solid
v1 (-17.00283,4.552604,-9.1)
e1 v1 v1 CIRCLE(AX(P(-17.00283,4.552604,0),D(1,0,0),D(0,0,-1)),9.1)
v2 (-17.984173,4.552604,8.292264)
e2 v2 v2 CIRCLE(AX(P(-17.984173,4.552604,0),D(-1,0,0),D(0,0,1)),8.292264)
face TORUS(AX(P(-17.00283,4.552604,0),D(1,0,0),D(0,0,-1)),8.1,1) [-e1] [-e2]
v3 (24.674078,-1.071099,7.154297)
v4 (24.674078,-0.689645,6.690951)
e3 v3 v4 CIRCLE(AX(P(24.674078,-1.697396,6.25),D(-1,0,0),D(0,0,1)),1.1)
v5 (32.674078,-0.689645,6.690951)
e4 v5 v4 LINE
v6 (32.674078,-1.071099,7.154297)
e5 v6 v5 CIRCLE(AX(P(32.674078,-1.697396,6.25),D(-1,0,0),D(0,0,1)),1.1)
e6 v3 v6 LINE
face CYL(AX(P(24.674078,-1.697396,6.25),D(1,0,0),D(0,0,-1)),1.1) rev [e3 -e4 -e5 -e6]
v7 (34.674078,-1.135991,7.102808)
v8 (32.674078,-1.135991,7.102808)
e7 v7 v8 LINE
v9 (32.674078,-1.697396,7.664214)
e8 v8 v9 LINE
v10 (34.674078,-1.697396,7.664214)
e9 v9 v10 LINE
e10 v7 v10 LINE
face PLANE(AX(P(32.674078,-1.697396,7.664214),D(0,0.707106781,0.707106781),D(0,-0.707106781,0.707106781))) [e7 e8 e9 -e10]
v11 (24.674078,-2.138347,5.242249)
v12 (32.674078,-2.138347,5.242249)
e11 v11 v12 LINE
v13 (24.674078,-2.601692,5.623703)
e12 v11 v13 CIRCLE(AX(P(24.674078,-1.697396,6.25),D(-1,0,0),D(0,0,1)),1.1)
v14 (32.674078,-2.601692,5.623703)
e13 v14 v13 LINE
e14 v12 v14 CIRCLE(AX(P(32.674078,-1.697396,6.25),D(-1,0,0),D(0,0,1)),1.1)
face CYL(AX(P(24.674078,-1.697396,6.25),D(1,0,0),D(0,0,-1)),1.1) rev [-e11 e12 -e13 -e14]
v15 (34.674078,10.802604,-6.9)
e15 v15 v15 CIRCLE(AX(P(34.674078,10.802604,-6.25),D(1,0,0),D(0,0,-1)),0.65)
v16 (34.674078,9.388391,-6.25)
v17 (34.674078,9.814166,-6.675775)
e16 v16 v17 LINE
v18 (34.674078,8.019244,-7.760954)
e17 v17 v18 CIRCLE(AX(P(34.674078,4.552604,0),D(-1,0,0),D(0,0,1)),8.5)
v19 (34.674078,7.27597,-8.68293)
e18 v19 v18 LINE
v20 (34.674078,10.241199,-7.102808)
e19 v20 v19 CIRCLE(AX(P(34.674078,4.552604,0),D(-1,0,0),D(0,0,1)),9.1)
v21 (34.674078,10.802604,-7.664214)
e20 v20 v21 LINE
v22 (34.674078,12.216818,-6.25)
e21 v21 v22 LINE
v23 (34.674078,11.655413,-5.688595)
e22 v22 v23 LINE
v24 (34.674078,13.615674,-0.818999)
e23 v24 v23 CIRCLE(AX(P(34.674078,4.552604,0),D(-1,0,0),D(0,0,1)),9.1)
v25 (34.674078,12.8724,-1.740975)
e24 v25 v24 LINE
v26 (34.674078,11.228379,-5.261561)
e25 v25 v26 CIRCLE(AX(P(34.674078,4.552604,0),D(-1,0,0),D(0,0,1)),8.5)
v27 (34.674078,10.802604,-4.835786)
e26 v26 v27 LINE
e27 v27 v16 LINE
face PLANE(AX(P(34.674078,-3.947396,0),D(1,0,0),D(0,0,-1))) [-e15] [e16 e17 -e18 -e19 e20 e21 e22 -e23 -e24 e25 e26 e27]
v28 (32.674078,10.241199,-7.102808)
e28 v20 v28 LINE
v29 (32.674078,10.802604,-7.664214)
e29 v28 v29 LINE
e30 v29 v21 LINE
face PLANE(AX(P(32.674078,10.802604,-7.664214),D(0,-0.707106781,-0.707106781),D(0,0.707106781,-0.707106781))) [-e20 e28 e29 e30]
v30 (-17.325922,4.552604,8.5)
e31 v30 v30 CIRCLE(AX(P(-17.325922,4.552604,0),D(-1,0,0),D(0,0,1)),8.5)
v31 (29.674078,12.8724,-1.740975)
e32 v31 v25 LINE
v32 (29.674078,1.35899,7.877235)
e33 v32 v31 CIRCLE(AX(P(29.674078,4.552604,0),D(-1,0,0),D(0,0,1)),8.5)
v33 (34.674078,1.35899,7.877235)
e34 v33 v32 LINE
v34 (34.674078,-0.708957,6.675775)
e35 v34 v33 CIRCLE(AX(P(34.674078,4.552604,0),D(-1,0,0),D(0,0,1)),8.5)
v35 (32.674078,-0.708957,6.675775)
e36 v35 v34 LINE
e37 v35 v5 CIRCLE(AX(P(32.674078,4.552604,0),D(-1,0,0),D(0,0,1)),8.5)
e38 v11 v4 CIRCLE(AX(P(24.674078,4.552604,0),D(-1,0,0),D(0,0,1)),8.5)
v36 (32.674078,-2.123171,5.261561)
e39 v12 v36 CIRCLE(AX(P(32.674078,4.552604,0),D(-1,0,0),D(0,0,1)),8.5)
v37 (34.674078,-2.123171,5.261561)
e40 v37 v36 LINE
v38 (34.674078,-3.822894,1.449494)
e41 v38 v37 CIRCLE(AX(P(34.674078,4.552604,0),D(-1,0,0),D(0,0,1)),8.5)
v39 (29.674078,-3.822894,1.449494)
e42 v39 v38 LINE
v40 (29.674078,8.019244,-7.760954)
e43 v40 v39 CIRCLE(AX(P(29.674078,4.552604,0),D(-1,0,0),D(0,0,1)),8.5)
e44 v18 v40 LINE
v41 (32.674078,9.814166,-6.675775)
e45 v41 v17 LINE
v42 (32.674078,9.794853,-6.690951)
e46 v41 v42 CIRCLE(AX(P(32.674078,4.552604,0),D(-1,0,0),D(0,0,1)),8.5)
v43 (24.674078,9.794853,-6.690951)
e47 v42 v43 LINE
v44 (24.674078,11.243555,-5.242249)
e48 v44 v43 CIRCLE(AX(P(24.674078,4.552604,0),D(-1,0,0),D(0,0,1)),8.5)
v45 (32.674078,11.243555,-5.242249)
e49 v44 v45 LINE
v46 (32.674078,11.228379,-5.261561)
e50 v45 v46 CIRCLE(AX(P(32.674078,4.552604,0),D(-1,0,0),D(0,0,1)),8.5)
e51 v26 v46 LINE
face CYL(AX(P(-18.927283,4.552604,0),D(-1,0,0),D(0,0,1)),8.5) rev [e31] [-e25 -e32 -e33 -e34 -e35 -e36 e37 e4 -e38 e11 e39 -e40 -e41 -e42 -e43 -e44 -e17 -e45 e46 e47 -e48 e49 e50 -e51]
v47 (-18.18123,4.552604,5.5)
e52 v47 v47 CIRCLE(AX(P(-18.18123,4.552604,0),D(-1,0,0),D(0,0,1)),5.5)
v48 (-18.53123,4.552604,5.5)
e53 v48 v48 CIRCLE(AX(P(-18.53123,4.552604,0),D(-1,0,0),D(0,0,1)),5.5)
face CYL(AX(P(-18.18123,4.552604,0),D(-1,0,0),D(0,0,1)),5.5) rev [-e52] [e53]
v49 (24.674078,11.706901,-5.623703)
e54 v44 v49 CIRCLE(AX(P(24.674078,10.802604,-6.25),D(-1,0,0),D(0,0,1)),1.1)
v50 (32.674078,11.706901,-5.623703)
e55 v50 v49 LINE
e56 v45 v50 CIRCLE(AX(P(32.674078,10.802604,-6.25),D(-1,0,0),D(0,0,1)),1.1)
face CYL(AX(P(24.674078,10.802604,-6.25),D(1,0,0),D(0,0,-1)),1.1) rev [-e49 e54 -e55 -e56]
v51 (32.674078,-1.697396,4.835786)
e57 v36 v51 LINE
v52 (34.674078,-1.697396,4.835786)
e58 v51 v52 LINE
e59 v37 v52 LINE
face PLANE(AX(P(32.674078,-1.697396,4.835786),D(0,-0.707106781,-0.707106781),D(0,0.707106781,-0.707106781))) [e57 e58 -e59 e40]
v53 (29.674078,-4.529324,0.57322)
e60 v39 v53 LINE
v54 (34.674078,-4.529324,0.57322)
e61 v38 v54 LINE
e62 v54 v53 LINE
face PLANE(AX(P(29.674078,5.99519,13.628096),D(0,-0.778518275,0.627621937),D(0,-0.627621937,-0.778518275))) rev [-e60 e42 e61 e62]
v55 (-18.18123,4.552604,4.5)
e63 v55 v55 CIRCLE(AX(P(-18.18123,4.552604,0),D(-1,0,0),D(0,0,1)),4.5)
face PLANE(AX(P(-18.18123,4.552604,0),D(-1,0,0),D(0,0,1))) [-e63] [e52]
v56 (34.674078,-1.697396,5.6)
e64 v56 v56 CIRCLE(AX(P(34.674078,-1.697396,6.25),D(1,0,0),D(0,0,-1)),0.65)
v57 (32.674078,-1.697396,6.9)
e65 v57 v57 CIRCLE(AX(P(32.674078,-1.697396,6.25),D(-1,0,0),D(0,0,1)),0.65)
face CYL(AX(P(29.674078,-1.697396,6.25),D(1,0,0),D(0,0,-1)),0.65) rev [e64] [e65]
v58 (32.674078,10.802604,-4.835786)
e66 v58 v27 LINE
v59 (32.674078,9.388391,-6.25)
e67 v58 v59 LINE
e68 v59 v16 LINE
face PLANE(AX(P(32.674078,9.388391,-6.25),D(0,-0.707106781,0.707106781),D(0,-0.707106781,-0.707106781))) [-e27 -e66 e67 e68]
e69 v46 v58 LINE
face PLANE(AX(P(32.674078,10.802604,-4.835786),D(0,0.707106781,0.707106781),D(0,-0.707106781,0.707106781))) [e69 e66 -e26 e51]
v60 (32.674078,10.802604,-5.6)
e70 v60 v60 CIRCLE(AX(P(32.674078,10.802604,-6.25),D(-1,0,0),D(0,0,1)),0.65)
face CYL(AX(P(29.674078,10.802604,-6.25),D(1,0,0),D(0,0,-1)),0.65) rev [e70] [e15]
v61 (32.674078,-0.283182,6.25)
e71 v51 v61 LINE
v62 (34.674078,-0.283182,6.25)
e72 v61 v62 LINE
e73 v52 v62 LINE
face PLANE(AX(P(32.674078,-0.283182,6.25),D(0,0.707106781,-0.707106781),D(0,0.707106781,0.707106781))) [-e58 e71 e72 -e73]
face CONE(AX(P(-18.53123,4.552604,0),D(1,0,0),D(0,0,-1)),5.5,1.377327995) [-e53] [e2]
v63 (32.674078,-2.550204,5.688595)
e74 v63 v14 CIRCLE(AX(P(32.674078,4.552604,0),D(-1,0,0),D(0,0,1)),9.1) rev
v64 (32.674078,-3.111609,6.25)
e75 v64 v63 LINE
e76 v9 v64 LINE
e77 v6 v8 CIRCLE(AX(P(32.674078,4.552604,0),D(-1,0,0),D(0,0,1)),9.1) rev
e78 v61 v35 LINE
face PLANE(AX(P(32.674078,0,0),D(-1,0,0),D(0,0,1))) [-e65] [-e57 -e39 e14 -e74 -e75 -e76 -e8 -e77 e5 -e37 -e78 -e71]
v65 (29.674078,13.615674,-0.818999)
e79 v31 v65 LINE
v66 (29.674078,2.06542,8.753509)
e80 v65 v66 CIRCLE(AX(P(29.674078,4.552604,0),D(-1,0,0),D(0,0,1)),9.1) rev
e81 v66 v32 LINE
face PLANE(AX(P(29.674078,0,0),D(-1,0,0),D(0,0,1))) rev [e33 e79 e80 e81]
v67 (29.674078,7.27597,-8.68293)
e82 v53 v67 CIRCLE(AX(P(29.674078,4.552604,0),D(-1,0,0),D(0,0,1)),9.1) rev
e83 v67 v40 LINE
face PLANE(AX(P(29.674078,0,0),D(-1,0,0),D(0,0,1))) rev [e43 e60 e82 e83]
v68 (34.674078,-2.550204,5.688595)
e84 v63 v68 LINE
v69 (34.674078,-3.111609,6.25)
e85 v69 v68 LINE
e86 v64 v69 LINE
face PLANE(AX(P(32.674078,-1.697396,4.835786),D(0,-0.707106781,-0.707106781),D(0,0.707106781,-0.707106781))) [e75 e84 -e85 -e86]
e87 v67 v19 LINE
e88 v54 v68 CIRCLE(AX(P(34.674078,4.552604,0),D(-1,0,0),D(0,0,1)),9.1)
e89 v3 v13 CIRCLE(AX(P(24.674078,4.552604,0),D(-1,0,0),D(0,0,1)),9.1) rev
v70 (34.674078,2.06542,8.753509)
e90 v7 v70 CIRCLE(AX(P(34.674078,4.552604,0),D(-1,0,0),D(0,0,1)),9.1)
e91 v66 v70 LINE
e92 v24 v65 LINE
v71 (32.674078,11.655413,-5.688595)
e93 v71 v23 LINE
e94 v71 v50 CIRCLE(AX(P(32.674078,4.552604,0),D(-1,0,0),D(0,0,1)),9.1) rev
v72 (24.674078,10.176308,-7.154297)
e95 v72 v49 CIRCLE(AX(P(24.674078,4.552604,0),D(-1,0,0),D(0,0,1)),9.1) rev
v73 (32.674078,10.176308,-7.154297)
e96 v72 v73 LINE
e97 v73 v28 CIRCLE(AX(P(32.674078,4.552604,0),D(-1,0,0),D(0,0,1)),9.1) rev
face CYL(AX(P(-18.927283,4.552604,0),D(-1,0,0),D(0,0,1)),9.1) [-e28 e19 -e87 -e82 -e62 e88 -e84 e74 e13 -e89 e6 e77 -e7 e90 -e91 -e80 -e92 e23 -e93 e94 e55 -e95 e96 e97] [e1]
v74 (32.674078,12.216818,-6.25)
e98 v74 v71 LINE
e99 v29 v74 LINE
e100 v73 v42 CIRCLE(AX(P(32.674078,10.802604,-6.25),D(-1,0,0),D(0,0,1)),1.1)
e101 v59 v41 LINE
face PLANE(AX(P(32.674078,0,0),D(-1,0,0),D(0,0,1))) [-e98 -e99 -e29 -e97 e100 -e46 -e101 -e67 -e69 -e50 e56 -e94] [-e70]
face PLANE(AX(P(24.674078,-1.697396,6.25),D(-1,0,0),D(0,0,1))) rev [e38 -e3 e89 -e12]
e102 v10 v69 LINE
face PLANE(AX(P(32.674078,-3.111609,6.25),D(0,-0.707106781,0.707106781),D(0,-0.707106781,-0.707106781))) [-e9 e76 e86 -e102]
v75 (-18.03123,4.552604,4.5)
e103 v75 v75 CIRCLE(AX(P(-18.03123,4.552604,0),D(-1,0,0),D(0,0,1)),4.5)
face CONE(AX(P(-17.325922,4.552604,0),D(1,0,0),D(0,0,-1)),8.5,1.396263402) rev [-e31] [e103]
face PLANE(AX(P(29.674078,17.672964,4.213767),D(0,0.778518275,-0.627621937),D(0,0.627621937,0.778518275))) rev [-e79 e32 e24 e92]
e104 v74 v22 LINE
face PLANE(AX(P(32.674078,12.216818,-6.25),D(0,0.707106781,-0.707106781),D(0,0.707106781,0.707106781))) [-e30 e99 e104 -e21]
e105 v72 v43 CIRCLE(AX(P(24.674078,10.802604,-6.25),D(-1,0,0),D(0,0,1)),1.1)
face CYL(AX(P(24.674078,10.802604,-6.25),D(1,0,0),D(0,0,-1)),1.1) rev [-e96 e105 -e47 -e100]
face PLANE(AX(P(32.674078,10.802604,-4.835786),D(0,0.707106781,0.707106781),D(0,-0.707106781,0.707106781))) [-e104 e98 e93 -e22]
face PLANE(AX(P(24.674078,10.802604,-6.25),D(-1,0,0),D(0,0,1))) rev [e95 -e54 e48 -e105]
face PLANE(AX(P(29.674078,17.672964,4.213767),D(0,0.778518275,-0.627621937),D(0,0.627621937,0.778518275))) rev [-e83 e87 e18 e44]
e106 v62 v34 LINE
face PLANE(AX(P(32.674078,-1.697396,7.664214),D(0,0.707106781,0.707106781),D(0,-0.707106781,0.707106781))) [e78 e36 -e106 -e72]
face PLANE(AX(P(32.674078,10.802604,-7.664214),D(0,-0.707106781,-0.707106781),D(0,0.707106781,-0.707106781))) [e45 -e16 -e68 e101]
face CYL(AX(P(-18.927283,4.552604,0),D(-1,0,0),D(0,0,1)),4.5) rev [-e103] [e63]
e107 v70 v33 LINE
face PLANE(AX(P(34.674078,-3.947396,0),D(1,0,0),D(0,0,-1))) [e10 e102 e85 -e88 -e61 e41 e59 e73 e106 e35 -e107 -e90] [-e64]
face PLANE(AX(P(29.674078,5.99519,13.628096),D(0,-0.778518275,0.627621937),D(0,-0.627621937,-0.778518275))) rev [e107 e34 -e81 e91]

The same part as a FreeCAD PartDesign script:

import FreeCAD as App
import Part
import Sketcher

V = App.Vector
Q = App.Units.Quantity


def edges_at(feature, points):
    """Names of the edges that pass closest to the given points."""
    edges = feature.Shape.Edges
    near = lambda p: min(range(len(edges)), key=lambda i: edges[i].distToShape(Part.Vertex(*p))[0])
    return sorted({f"Edge{near(p) + 1}" for p in points})


def add_polygon(sketch, points):
    """Adds a closed chain of lines whose ends are joined by coincident constraints."""
    first, n = sketch.GeometryCount, len(points)
    for a, b in zip(points, points[1:] + points[:1]):
        sketch.addGeometry(Part.LineSegment(App.Vector(*a, 0), App.Vector(*b, 0)), False)
    for i in range(n):
        sketch.addConstraint(Sketcher.Constraint("Coincident", first + i, 2, first + (i + 1) % n, 1))

doc = App.newDocument("Part")
body = doc.addObject("PartDesign::Body", "Body")

sketch1 = body.newObject("Sketcher::SketchObject", "Sketch")
sketch1.AttachmentSupport = (doc.getObject("XY_Plane"), [""])
sketch1.MapMode = "FlatFace"
add_polygon(sketch1, [(34.7, -3.9), (-17.3, -3.9), (-18, 0.1), (-18.5, 0.1), (-18.5, -0.9), (-17.8, -4.5), (34.7, -4.5)])
sketch1.addGeometry(Part.LineSegment(V(-18.5, 4.6, 0), V(34.7, 4.6, 0)), True)
sketch1.addConstraint([
    Sketcher.Constraint("Horizontal", 0),
    Sketcher.Constraint("Horizontal", 2),
    Sketcher.Constraint("Vertical", 3),
    Sketcher.Constraint("Horizontal", 5),
    Sketcher.Constraint("Vertical", 6),
    Sketcher.Constraint("Horizontal", 7),
    Sketcher.Constraint("Vertical", 3, 2, 7, 1),
    Sketcher.Constraint("Vertical", 6, 2, 7, 2),
    Sketcher.Constraint("DistanceX", 0, 2, 0, 1, 52.0),
    Sketcher.Constraint("DistanceY", 3, 2, 3, 1, 1.0),
    Sketcher.Constraint("Angle", 1, Q("100 deg")),
    Sketcher.Constraint("DistanceX", 2, 2, 2, 1, 0.5),
    Sketcher.Constraint("DistanceX", 5, 1, 5, 2, 52.5),
    Sketcher.Constraint("DistanceY", 6, 1, 6, 2, 0.6),
    Sketcher.Constraint("DistanceY", 0, 2, 1, 2, 4.0),
    Sketcher.Constraint("DistanceY", 2, 2, 7, 1, 4.5),
    Sketcher.Constraint("DistanceX", 1, 2, -1, 1, 18.03123),
    Sketcher.Constraint("DistanceY", 0, 2, -1, 1, 3.947396),
])
revolution = body.newObject("PartDesign::Revolution", "Revolution")
revolution.Profile = sketch1
revolution.ReferenceAxis = (sketch1, ["Axis0"])
revolution.Angle = 360
doc.recompute()

fillet = body.newObject("PartDesign::Fillet", "Fillet")
fillet.Base = (revolution, edges_at(revolution, [(-17.826, 4.553, -9.1)]))
fillet.Radius = 1

sketch2 = body.newObject("Sketcher::SketchObject", "Sketch001")
sketch2.AttachmentSupport = (doc.getObject("YZ_Plane"), [""])
sketch2.MapMode = "FlatFace"
sketch2.AttachmentOffset = App.Placement(V(0, 0, -18.53123), App.Rotation())
sketch2.addGeometry(Part.Circle(V(5, 0, 0), V(0, 0, 1), 6), False)
sketch2.addConstraint([
    Sketcher.Constraint("PointOnObject", 0, 3, -1),
    Sketcher.Constraint("Diameter", 0, 11.0),
    Sketcher.Constraint("DistanceX", -1, 1, 0, 3, 4.552604),
])
pocket1 = body.newObject("PartDesign::Pocket", "Pocket")
pocket1.Profile = sketch2
pocket1.Length = 0.35
pocket1.Reversed = True

sketch3 = body.newObject("Sketcher::SketchObject", "Sketch002")
sketch3.AttachmentSupport = (doc.getObject("YZ_Plane"), [""])
sketch3.MapMode = "FlatFace"
sketch3.AttachmentOffset = App.Placement(V(0, 0, 34.674078), App.Rotation())
add_polygon(sketch3, [(6, 14), (-9, -5), (3, -14), (18, 4)])
sketch3.addConstraint([
    Sketcher.Constraint("Perpendicular", 0, 1),
    Sketcher.Constraint("Perpendicular", 1, 2),
    Sketcher.Constraint("Perpendicular", 2, 3),
    Sketcher.Constraint("Distance", 0, 24.0),
    Sketcher.Constraint("Distance", 1, 15.0),
    Sketcher.Constraint("DistanceX", 0, 2, 2, 2, 26.740701),
    Sketcher.Constraint("DistanceY", 1, 2, -1, 1, 14.470672),
    Sketcher.Constraint("DistanceX", -1, 1, 3, 2, 5.99519),
])
pocket2 = body.newObject("PartDesign::Pocket", "Pocket001")
pocket2.Profile = sketch3
pocket2.Length = 5

sketch4 = body.newObject("Sketcher::SketchObject", "Sketch003")
sketch4.AttachmentSupport = (doc.getObject("YZ_Plane"), [""])
sketch4.MapMode = "FlatFace"
sketch4.AttachmentOffset = App.Placement(V(0, 0, 34.674078), App.Rotation())
add_polygon(sketch4, [(-1.7, 4.8), (-0.3, 6.2), (-1.7, 7.7), (-3.1, 6.2)])
add_polygon(sketch4, [(12.2, -6.2), (10.8, -4.8), (9.4, -6.2), (10.8, -7.7)])
sketch4.addConstraint([
    Sketcher.Constraint("Perpendicular", 0, 1),
    Sketcher.Constraint("Perpendicular", 1, 2),
    Sketcher.Constraint("Perpendicular", 2, 3),
    Sketcher.Constraint("Parallel", 3, 4),
    Sketcher.Constraint("Perpendicular", 4, 5),
    Sketcher.Constraint("Perpendicular", 5, 6),
    Sketcher.Constraint("Perpendicular", 6, 7),
    Sketcher.Constraint("Horizontal", 0, 2, 2, 2),
    Sketcher.Constraint("Horizontal", 5, 2, 7, 2),
    Sketcher.Constraint("Vertical", 1, 2, 3, 2),
    Sketcher.Constraint("Equal", 3, 4),
    Sketcher.Constraint("Distance", 0, 2.0),
    Sketcher.Constraint("DistanceX", 3, 2, 4, 2, 12.5),
    Sketcher.Constraint("DistanceY", 4, 2, 1, 2, 12.5),
    Sketcher.Constraint("DistanceY", -1, 1, 0, 2, 6.25),
    Sketcher.Constraint("DistanceX", 2, 2, -1, 1, 3.111609),
])
pad1 = body.newObject("PartDesign::Pad", "Pad")
pad1.Profile = sketch4
pad1.Length = 2
pad1.Reversed = True

sketch5 = body.newObject("Sketcher::SketchObject", "Sketch004")
sketch5.AttachmentSupport = (doc.getObject("YZ_Plane"), [""])
sketch5.MapMode = "FlatFace"
sketch5.AttachmentOffset = App.Placement(V(0, 0, 34.674078), App.Rotation())
sketch5.addGeometry([
    Part.Circle(V(10.8, -6.2, 0), V(0, 0, 1), 0.7),
    Part.Circle(V(-1.7, 6.2, 0), V(0, 0, 1), 0.7),
], False)
sketch5.addConstraint([
    Sketcher.Constraint("Equal", 0, 1),
    Sketcher.Constraint("Diameter", 0, 1.3),
    Sketcher.Constraint("DistanceX", 1, 3, 0, 3, 12.5),
    Sketcher.Constraint("DistanceY", 0, 3, 1, 3, 12.5),
    Sketcher.Constraint("DistanceY", 0, 3, -1, 1, 6.25),
    Sketcher.Constraint("DistanceX", -1, 1, 0, 3, 10.802604),
])
pocket3 = body.newObject("PartDesign::Pocket", "Pocket002")
pocket3.Profile = sketch5
pocket3.Length = 5

sketch6 = body.newObject("Sketcher::SketchObject", "Sketch005")
sketch6.AttachmentSupport = (doc.getObject("YZ_Plane"), [""])
sketch6.MapMode = "FlatFace"
sketch6.AttachmentOffset = App.Placement(V(0, 0, 32.674078), App.Rotation())
sketch6.addGeometry([
    Part.Circle(V(-1.7, 6.2, 0), V(0, 0, 1), 1.1),
    Part.Circle(V(10.8, -6.2, 0), V(0, 0, 1), 1.1),
], False)
sketch6.addConstraint([
    Sketcher.Constraint("Equal", 0, 1),
    Sketcher.Constraint("Diameter", 0, 2.2),
    Sketcher.Constraint("DistanceX", 0, 3, 1, 3, 12.5),
    Sketcher.Constraint("DistanceY", 1, 3, 0, 3, 12.5),
    Sketcher.Constraint("DistanceY", -1, 1, 0, 3, 6.25),
    Sketcher.Constraint("DistanceX", 0, 3, -1, 1, 1.697396),
])
pocket4 = body.newObject("PartDesign::Pocket", "Pocket003")
pocket4.Profile = sketch6
pocket4.Length = 8

doc.recompute()
